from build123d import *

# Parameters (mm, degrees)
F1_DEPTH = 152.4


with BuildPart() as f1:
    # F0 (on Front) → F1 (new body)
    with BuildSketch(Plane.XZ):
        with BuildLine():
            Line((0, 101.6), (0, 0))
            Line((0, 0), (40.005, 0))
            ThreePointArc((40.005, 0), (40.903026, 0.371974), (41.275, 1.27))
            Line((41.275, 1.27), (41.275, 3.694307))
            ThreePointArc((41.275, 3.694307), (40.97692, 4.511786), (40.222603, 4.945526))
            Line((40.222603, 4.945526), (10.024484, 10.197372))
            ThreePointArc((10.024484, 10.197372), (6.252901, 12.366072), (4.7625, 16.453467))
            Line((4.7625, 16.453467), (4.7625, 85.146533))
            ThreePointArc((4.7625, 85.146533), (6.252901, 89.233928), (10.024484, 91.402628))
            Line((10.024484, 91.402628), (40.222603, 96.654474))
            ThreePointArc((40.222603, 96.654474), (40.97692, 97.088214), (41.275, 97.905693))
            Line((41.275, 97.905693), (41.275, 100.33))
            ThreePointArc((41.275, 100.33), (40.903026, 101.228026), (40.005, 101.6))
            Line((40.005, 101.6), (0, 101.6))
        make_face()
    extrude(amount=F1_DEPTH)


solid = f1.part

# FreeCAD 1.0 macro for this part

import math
import FreeCAD as App
import Part
import Sketcher
from FreeCAD import Vector
Q = App.Units.Quantity

doc = App.newDocument("Part")
params = doc.addObject("Spreadsheet::Sheet", "Params")
for row, (alias, value) in enumerate([
    ("sketch1_height", "4 in"),
    ("sketch1_radius", "0.0499999 in"),
    ("sketch1_radius2", "0.25 in"),
    ("sketch1_width", "1.575 in"),
    ("pad1_length", "6 in"),
], start=1):
    params.set(f"A{row}", alias)
    params.set(f"B{row}", "=" + value)
    params.setAlias(f"B{row}", alias)

body = doc.addObject("PartDesign::Body", "Body")

# Sketch on XZ plane
sketch1 = body.newObject("Sketcher::SketchObject", "Sketch")
sketch1.AttachmentSupport = (doc.getObject("XZ_Plane"), [""])
sketch1.MapMode = "FlatFace"
sketch1.addGeometry([
    Part.LineSegment(Vector(0, 101.6, 0), Vector(0, 0, 0)),  # 0
    Part.LineSegment(Vector(0, 0, 0), Vector(40, 0, 0)),  # 1
    Part.ArcOfCircle(Part.Circle(Vector(40, 1.3, 0), Vector(0, 0, 1), 1.3), math.radians(-90), math.radians(0)),  # 2
    Part.LineSegment(Vector(41.3, 1.3, 0), Vector(41.3, 3.7, 0)),  # 3
    Part.ArcOfCircle(Part.Circle(Vector(40, 3.7, 0), Vector(0, 0, 1), 1.3), math.radians(0), math.radians(80)),  # 4
    Part.LineSegment(Vector(40.2, 4.9, 0), Vector(10, 10.2, 0)),  # 5
    Part.ArcOfCircle(Part.Circle(Vector(11.1, 16.5, 0), Vector(0, 0, 1), 6.4), math.radians(-180), math.radians(-100)),  # 6
    Part.LineSegment(Vector(4.8, 16.5, 0), Vector(4.8, 85.1, 0)),  # 7
    Part.ArcOfCircle(Part.Circle(Vector(11.1, 85.1, 0), Vector(0, 0, 1), 6.4), math.radians(100), math.radians(180)),  # 8
    Part.LineSegment(Vector(10, 91.4, 0), Vector(40.2, 96.7, 0)),  # 9
    Part.ArcOfCircle(Part.Circle(Vector(40, 97.9, 0), Vector(0, 0, 1), 1.3), math.radians(-80), math.radians(0)),  # 10
    Part.LineSegment(Vector(41.3, 97.9, 0), Vector(41.3, 100.3, 0)),  # 11
    Part.ArcOfCircle(Part.Circle(Vector(40, 100.3, 0), Vector(0, 0, 1), 1.3), math.radians(0), math.radians(90)),  # 12
    Part.LineSegment(Vector(40, 101.6, 0), Vector(0, 101.6, 0)),  # 13
], False)
sketch1.addConstraint([
    Sketcher.Constraint("Coincident", 0, 2, 1, 1),
    Sketcher.Constraint("Tangent", 1, 2, 2, 1),
    Sketcher.Constraint("Tangent", 2, 2, 3, 1),
    Sketcher.Constraint("Tangent", 3, 2, 4, 1),
    Sketcher.Constraint("Tangent", 4, 2, 5, 1),
    Sketcher.Constraint("Tangent", 5, 2, 6, 2),
    Sketcher.Constraint("Tangent", 6, 1, 7, 1),
    Sketcher.Constraint("Tangent", 7, 2, 8, 2),
    Sketcher.Constraint("Tangent", 8, 1, 9, 1),
    Sketcher.Constraint("Tangent", 9, 2, 10, 1),
    Sketcher.Constraint("Tangent", 10, 2, 11, 1),
    Sketcher.Constraint("Tangent", 11, 2, 12, 1),
    Sketcher.Constraint("Tangent", 12, 2, 13, 1),
    Sketcher.Constraint("Coincident", 13, 2, 0, 1),
    Sketcher.Constraint("Vertical", 0),
    Sketcher.Constraint("Horizontal", 1),
    Sketcher.Constraint("Vertical", 3),
    Sketcher.Constraint("Vertical", 7),
    Sketcher.Constraint("Vertical", 11),
    Sketcher.Constraint("Horizontal", 13),
    Sketcher.Constraint("Coincident", 0, 2, -1, 1),
    Sketcher.Constraint("Equal", 2, 4),
    Sketcher.Constraint("Equal", 6, 8),
    Sketcher.Constraint("Equal", 4, 10),
    Sketcher.Constraint("Equal", 10, 12),
    Sketcher.Constraint("Vertical", 4, 3, 10, 3),
    Sketcher.Constraint("Vertical", 5, 2, 8, 1),
    Sketcher.Constraint("Equal", 3, 11),
    Sketcher.Constraint("DistanceY", 0, 2, 0, 1, Q("4 in")),
    Sketcher.Constraint("Radius", 2, Q("0.0499999 in")),
    Sketcher.Constraint("Radius", 6, Q("0.25 in")),
    Sketcher.Constraint("DistanceX", 1, 1, 1, 2, Q("1.575 in")),
    Sketcher.Constraint("DistanceX", -1, 1, 6, 3, Q("0.4375 in")),
    Sketcher.Constraint("Distance", 5, Q("30.651399 mm")),
    Sketcher.Constraint("DistanceY", 3, 1, 3, 2, Q("2.424307 mm")),
])
sketch1.setExpression("Constraints[28]", "Params.sketch1_height")
sketch1.setExpression("Constraints[29]", "Params.sketch1_radius")
sketch1.setExpression("Constraints[30]", "Params.sketch1_radius2")
sketch1.setExpression("Constraints[31]", "Params.sketch1_width")
pad1 = body.newObject("PartDesign::Pad", "Pad")
pad1.Profile = sketch1
pad1.setExpression("Length", "Params.pad1_length")

doc.recompute()
